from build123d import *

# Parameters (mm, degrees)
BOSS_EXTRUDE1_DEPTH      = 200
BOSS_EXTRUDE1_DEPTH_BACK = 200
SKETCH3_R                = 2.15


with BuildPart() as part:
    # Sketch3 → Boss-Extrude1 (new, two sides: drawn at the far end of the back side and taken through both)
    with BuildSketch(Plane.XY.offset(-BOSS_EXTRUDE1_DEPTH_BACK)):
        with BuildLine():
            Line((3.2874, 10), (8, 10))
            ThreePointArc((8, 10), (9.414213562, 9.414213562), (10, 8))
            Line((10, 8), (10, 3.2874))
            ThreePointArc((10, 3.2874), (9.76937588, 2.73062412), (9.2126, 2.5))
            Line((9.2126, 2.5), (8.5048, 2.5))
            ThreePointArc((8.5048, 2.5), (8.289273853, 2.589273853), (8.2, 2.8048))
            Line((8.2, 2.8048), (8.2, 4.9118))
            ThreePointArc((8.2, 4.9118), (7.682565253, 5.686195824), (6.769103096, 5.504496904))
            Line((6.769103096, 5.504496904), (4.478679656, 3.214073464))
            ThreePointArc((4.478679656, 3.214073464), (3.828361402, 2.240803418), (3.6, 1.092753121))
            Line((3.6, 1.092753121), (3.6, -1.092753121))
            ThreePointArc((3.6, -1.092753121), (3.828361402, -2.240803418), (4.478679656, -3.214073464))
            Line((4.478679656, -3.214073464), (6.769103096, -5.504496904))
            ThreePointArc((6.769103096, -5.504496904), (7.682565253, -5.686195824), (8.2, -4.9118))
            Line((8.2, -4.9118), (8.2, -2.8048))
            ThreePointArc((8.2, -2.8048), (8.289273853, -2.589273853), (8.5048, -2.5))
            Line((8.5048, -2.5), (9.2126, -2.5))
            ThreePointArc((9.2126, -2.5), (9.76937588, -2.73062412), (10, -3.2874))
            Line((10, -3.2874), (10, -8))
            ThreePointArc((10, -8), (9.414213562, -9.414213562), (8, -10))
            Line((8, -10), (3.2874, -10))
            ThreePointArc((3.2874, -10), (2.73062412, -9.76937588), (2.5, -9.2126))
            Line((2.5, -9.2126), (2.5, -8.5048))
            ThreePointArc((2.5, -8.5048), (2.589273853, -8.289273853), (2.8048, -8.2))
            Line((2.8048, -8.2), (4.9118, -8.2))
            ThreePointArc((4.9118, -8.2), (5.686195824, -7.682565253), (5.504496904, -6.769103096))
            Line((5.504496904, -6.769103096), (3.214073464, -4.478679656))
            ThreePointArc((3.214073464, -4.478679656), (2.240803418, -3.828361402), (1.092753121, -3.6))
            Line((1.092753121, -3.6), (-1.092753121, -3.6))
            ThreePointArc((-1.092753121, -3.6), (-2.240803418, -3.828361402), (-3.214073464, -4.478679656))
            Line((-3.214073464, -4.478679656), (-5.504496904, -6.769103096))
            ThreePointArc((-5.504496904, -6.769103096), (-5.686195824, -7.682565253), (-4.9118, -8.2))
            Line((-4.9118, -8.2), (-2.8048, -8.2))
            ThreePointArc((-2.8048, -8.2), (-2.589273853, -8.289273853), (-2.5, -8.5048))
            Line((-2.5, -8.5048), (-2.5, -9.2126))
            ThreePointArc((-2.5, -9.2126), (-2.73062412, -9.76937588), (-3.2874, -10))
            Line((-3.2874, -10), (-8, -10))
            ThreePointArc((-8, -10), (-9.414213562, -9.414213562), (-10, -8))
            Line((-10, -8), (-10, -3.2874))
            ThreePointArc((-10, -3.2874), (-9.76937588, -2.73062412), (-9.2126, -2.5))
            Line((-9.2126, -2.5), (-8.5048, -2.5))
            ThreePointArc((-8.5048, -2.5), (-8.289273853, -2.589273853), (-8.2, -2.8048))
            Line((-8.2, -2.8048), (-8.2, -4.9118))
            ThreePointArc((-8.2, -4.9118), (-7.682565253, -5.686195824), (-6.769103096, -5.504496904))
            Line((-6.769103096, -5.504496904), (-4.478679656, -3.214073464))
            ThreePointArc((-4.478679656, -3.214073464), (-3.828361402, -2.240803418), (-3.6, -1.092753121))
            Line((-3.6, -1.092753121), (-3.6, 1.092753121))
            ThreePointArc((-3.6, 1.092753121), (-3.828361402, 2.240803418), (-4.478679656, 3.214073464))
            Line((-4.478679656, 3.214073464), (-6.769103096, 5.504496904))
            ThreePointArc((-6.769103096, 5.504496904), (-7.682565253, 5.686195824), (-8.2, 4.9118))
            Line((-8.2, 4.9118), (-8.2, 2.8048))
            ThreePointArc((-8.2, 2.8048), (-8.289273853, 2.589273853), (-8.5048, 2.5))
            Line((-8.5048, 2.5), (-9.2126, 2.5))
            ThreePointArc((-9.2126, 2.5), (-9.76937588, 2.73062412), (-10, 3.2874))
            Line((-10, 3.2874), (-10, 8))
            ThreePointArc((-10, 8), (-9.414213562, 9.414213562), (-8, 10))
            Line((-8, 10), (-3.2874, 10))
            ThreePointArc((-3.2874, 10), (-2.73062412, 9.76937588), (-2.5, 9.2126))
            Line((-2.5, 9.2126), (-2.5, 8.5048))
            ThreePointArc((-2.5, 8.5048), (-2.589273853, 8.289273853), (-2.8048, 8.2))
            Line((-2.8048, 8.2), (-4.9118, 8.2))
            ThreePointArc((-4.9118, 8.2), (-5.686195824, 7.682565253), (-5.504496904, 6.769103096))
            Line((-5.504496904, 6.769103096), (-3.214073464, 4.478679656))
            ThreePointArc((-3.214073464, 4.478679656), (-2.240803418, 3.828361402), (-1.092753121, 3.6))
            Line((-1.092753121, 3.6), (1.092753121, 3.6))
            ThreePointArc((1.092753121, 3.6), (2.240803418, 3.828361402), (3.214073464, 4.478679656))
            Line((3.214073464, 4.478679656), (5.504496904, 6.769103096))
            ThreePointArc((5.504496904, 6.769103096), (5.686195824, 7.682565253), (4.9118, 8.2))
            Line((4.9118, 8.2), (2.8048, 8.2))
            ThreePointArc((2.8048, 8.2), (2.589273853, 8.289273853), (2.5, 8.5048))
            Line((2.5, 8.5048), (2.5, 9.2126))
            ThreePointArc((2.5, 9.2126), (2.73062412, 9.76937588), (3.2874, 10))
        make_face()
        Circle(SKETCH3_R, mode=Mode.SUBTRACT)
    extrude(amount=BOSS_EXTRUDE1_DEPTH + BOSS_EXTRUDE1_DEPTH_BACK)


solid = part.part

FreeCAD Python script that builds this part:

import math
import FreeCAD as App
import Part
import Sketcher
from FreeCAD import Vector
Q = App.Units.Quantity

doc = App.newDocument("Part")
body = doc.addObject("PartDesign::Body", "Body")

sketch1 = body.newObject("Sketcher::SketchObject", "Sketch")
sketch1.AttachmentSupport = (doc.getObject("XY_Plane"), [""])
sketch1.MapMode = "FlatFace"
sketch1.addGeometry(Part.LineSegment(Vector(8, 10, 0), Vector(3.29, 10, 0)), False)
sketch1.addGeometry(Part.ArcOfCircle(Part.Circle(Vector(3.29, 9.21, 0), Vector(0, 0, 1), 0.79), math.radians(90), math.radians(180)), False)
sketch1.addGeometry(Part.LineSegment(Vector(2.5, 9.21, 0), Vector(2.5, 8.5, 0)), False)
sketch1.addGeometry(Part.ArcOfCircle(Part.Circle(Vector(2.8, 8.5, 0), Vector(0, 0, 1), 0.3), math.radians(180), math.radians(270)), False)
sketch1.addGeometry(Part.LineSegment(Vector(2.8, 8.2, 0), Vector(4.91, 8.2, 0)), False)
sketch1.addGeometry(Part.ArcOfCircle(Part.Circle(Vector(4.91, 7.36, 0), Vector(0, 0, 1), 0.84), math.radians(-45), math.radians(90)), False)
sketch1.addGeometry(Part.LineSegment(Vector(5.5, 6.77, 0), Vector(3.21, 4.48, 0)), False)
sketch1.addGeometry(Part.ArcOfCircle(Part.Circle(Vector(1.09, 6.6, 0), Vector(0, 0, 1), 3), math.radians(-90), math.radians(-45)), False)
sketch1.addGeometry(Part.LineSegment(Vector(1.09, 3.6, 0), Vector(-1.09, 3.6, 0)), False)
sketch1.addGeometry(Part.ArcOfCircle(Part.Circle(Vector(-1.09, 6.6, 0), Vector(0, 0, 1), 3), math.radians(-135), math.radians(-90)), False)
sketch1.addGeometry(Part.LineSegment(Vector(-3.21, 4.48, 0), Vector(-5.5, 6.77, 0)), False)
sketch1.addGeometry(Part.ArcOfCircle(Part.Circle(Vector(-4.91, 7.36, 0), Vector(0, 0, 1), 0.84), math.radians(90), math.radians(225)), False)
sketch1.addGeometry(Part.LineSegment(Vector(-4.91, 8.2, 0), Vector(-2.8, 8.2, 0)), False)
sketch1.addGeometry(Part.ArcOfCircle(Part.Circle(Vector(-2.8, 8.5, 0), Vector(0, 0, 1), 0.3), math.radians(-90), math.radians(0)), False)
sketch1.addGeometry(Part.LineSegment(Vector(-2.5, 8.5, 0), Vector(-2.5, 9.21, 0)), False)
sketch1.addGeometry(Part.ArcOfCircle(Part.Circle(Vector(-3.29, 9.21, 0), Vector(0, 0, 1), 0.79), math.radians(0), math.radians(90)), False)
sketch1.addGeometry(Part.LineSegment(Vector(-3.29, 10, 0), Vector(-8, 10, 0)), False)
sketch1.addGeometry(Part.ArcOfCircle(Part.Circle(Vector(-8, 8, 0), Vector(0, 0, 1), 2), math.radians(90), math.radians(180)), False)
sketch1.addGeometry(Part.LineSegment(Vector(-10, 8, 0), Vector(-10, 3.29, 0)), False)
sketch1.addGeometry(Part.ArcOfCircle(Part.Circle(Vector(-9.21, 3.29, 0), Vector(0, 0, 1), 0.79), math.radians(180), math.radians(270)), False)
sketch1.addGeometry(Part.LineSegment(Vector(-9.21, 2.5, 0), Vector(-8.5, 2.5, 0)), False)
sketch1.addGeometry(Part.ArcOfCircle(Part.Circle(Vector(-8.5, 2.8, 0), Vector(0, 0, 1), 0.3), math.radians(-90), math.radians(0)), False)
sketch1.addGeometry(Part.LineSegment(Vector(-8.2, 2.8, 0), Vector(-8.2, 4.91, 0)), False)
sketch1.addGeometry(Part.ArcOfCircle(Part.Circle(Vector(-7.36, 4.91, 0), Vector(0, 0, 1), 0.84), math.radians(45), math.radians(180)), False)
sketch1.addGeometry(Part.LineSegment(Vector(-6.77, 5.5, 0), Vector(-4.48, 3.21, 0)), False)
sketch1.addGeometry(Part.ArcOfCircle(Part.Circle(Vector(-6.6, 1.09, 0), Vector(0, 0, 1), 3), math.radians(0), math.radians(45)), False)
sketch1.addGeometry(Part.LineSegment(Vector(-3.6, 1.09, 0), Vector(-3.6, -1.09, 0)), False)
sketch1.addGeometry(Part.ArcOfCircle(Part.Circle(Vector(-6.6, -1.09, 0), Vector(0, 0, 1), 3), math.radians(-45), math.radians(0)), False)
sketch1.addGeometry(Part.LineSegment(Vector(-4.48, -3.21, 0), Vector(-6.77, -5.5, 0)), False)
sketch1.addGeometry(Part.ArcOfCircle(Part.Circle(Vector(-7.36, -4.91, 0), Vector(0, 0, 1), 0.84), math.radians(180), math.radians(315)), False)
sketch1.addGeometry(Part.LineSegment(Vector(-8.2, -4.91, 0), Vector(-8.2, -2.8, 0)), False)
sketch1.addGeometry(Part.ArcOfCircle(Part.Circle(Vector(-8.5, -2.8, 0), Vector(0, 0, 1), 0.3), math.radians(0), math.radians(90)), False)
sketch1.addGeometry(Part.LineSegment(Vector(-8.5, -2.5, 0), Vector(-9.21, -2.5, 0)), False)
sketch1.addGeometry(Part.ArcOfCircle(Part.Circle(Vector(-9.21, -3.29, 0), Vector(0, 0, 1), 0.79), math.radians(90), math.radians(180)), False)
sketch1.addGeometry(Part.LineSegment(Vector(-10, -3.29, 0), Vector(-10, -8, 0)), False)
sketch1.addGeometry(Part.ArcOfCircle(Part.Circle(Vector(-8, -8, 0), Vector(0, 0, 1), 2), math.radians(-180), math.radians(-90)), False)
sketch1.addGeometry(Part.LineSegment(Vector(-8, -10, 0), Vector(-3.29, -10, 0)), False)
sketch1.addGeometry(Part.ArcOfCircle(Part.Circle(Vector(-3.29, -9.21, 0), Vector(0, 0, 1), 0.79), math.radians(-90), math.radians(0)), False)
sketch1.addGeometry(Part.LineSegment(Vector(-2.5, -9.21, 0), Vector(-2.5, -8.5, 0)), False)
sketch1.addGeometry(Part.ArcOfCircle(Part.Circle(Vector(-2.8, -8.5, 0), Vector(0, 0, 1), 0.3), math.radians(0), math.radians(90)), False)
sketch1.addGeometry(Part.LineSegment(Vector(-2.8, -8.2, 0), Vector(-4.91, -8.2, 0)), False)
sketch1.addGeometry(Part.ArcOfCircle(Part.Circle(Vector(-4.91, -7.36, 0), Vector(0, 0, 1), 0.84), math.radians(135), math.radians(270)), False)
sketch1.addGeometry(Part.LineSegment(Vector(-5.5, -6.77, 0), Vector(-3.21, -4.48, 0)), False)
sketch1.addGeometry(Part.ArcOfCircle(Part.Circle(Vector(-1.09, -6.6, 0), Vector(0, 0, 1), 3), math.radians(90), math.radians(135)), False)
sketch1.addGeometry(Part.LineSegment(Vector(-1.09, -3.6, 0), Vector(1.09, -3.6, 0)), False)
sketch1.addGeometry(Part.ArcOfCircle(Part.Circle(Vector(1.09, -6.6, 0), Vector(0, 0, 1), 3), math.radians(45), math.radians(90)), False)
sketch1.addGeometry(Part.LineSegment(Vector(3.21, -4.48, 0), Vector(5.5, -6.77, 0)), False)
sketch1.addGeometry(Part.ArcOfCircle(Part.Circle(Vector(4.91, -7.36, 0), Vector(0, 0, 1), 0.84), math.radians(-90), math.radians(45)), False)
sketch1.addGeometry(Part.LineSegment(Vector(4.91, -8.2, 0), Vector(2.8, -8.2, 0)), False)
sketch1.addGeometry(Part.ArcOfCircle(Part.Circle(Vector(2.8, -8.5, 0), Vector(0, 0, 1), 0.3), math.radians(90), math.radians(180)), False)
sketch1.addGeometry(Part.LineSegment(Vector(2.5, -8.5, 0), Vector(2.5, -9.21, 0)), False)
sketch1.addGeometry(Part.ArcOfCircle(Part.Circle(Vector(3.29, -9.21, 0), Vector(0, 0, 1), 0.79), math.radians(180), math.radians(270)), False)
sketch1.addGeometry(Part.LineSegment(Vector(3.29, -10, 0), Vector(8, -10, 0)), False)
sketch1.addGeometry(Part.ArcOfCircle(Part.Circle(Vector(8, -8, 0), Vector(0, 0, 1), 2), math.radians(-90), math.radians(0)), False)
sketch1.addGeometry(Part.LineSegment(Vector(10, -8, 0), Vector(10, -3.29, 0)), False)
sketch1.addGeometry(Part.ArcOfCircle(Part.Circle(Vector(9.21, -3.29, 0), Vector(0, 0, 1), 0.79), math.radians(0), math.radians(90)), False)
sketch1.addGeometry(Part.LineSegment(Vector(9.21, -2.5, 0), Vector(8.5, -2.5, 0)), False)
sketch1.addGeometry(Part.ArcOfCircle(Part.Circle(Vector(8.5, -2.8, 0), Vector(0, 0, 1), 0.3), math.radians(90), math.radians(180)), False)
sketch1.addGeometry(Part.LineSegment(Vector(8.2, -2.8, 0), Vector(8.2, -4.91, 0)), False)
sketch1.addGeometry(Part.ArcOfCircle(Part.Circle(Vector(7.36, -4.91, 0), Vector(0, 0, 1), 0.84), math.radians(-135), math.radians(0)), False)
sketch1.addGeometry(Part.LineSegment(Vector(6.77, -5.5, 0), Vector(4.48, -3.21, 0)), False)
sketch1.addGeometry(Part.ArcOfCircle(Part.Circle(Vector(6.6, -1.09, 0), Vector(0, 0, 1), 3), math.radians(180), math.radians(225)), False)
sketch1.addGeometry(Part.LineSegment(Vector(3.6, -1.09, 0), Vector(3.6, 1.09, 0)), False)
sketch1.addGeometry(Part.ArcOfCircle(Part.Circle(Vector(6.6, 1.09, 0), Vector(0, 0, 1), 3), math.radians(135), math.radians(180)), False)
sketch1.addGeometry(Part.LineSegment(Vector(4.48, 3.21, 0), Vector(6.77, 5.5, 0)), False)
sketch1.addGeometry(Part.ArcOfCircle(Part.Circle(Vector(7.36, 4.91, 0), Vector(0, 0, 1), 0.84), math.radians(0), math.radians(135)), False)
sketch1.addGeometry(Part.LineSegment(Vector(8.2, 4.91, 0), Vector(8.2, 2.8, 0)), False)
sketch1.addGeometry(Part.ArcOfCircle(Part.Circle(Vector(8.5, 2.8, 0), Vector(0, 0, 1), 0.3), math.radians(180), math.radians(270)), False)
sketch1.addGeometry(Part.LineSegment(Vector(8.5, 2.5, 0), Vector(9.21, 2.5, 0)), False)
sketch1.addGeometry(Part.ArcOfCircle(Part.Circle(Vector(9.21, 3.29, 0), Vector(0, 0, 1), 0.79), math.radians(-90), math.radians(0)), False)
sketch1.addGeometry(Part.LineSegment(Vector(10, 3.29, 0), Vector(10, 8, 0)), False)
sketch1.addGeometry(Part.ArcOfCircle(Part.Circle(Vector(8, 8, 0), Vector(0, 0, 1), 2), math.radians(0), math.radians(90)), False)
sketch1.addGeometry(Part.Circle(Vector(0, 0, 0), Vector(0, 0, 1), 2.15), False)
sketch1.addConstraint(Sketcher.Constraint("Tangent", 0, 2, 1, 1))
sketch1.addConstraint(Sketcher.Constraint("Tangent", 1, 2, 2, 1))
sketch1.addConstraint(Sketcher.Constraint("Tangent", 2, 2, 3, 1))
sketch1.addConstraint(Sketcher.Constraint("Tangent", 3, 2, 4, 1))
sketch1.addConstraint(Sketcher.Constraint("Tangent", 4, 2, 5, 2))
sketch1.addConstraint(Sketcher.Constraint("Tangent", 5, 1, 6, 1))
sketch1.addConstraint(Sketcher.Constraint("Tangent", 6, 2, 7, 2))
sketch1.addConstraint(Sketcher.Constraint("Tangent", 7, 1, 8, 1))
sketch1.addConstraint(Sketcher.Constraint("Tangent", 8, 2, 9, 2))
sketch1.addConstraint(Sketcher.Constraint("Tangent", 9, 1, 10, 1))
sketch1.addConstraint(Sketcher.Constraint("Tangent", 10, 2, 11, 2))
sketch1.addConstraint(Sketcher.Constraint("Tangent", 11, 1, 12, 1))
sketch1.addConstraint(Sketcher.Constraint("Tangent", 12, 2, 13, 1))
sketch1.addConstraint(Sketcher.Constraint("Tangent", 13, 2, 14, 1))
sketch1.addConstraint(Sketcher.Constraint("Tangent", 14, 2, 15, 1))
sketch1.addConstraint(Sketcher.Constraint("Tangent", 15, 2, 16, 1))
sketch1.addConstraint(Sketcher.Constraint("Tangent", 16, 2, 17, 1))
sketch1.addConstraint(Sketcher.Constraint("Tangent", 17, 2, 18, 1))
sketch1.addConstraint(Sketcher.Constraint("Tangent", 18, 2, 19, 1))
sketch1.addConstraint(Sketcher.Constraint("Tangent", 19, 2, 20, 1))
sketch1.addConstraint(Sketcher.Constraint("Tangent", 20, 2, 21, 1))
sketch1.addConstraint(Sketcher.Constraint("Tangent", 21, 2, 22, 1))
sketch1.addConstraint(Sketcher.Constraint("Tangent", 22, 2, 23, 2))
sketch1.addConstraint(Sketcher.Constraint("Tangent", 23, 1, 24, 1))
sketch1.addConstraint(Sketcher.Constraint("Tangent", 24, 2, 25, 2))
sketch1.addConstraint(Sketcher.Constraint("Tangent", 25, 1, 26, 1))
sketch1.addConstraint(Sketcher.Constraint("Tangent", 26, 2, 27, 2))
sketch1.addConstraint(Sketcher.Constraint("Tangent", 27, 1, 28, 1))
sketch1.addConstraint(Sketcher.Constraint("Tangent", 28, 2, 29, 2))
sketch1.addConstraint(Sketcher.Constraint("Tangent", 29, 1, 30, 1))
sketch1.addConstraint(Sketcher.Constraint("Tangent", 30, 2, 31, 1))
sketch1.addConstraint(Sketcher.Constraint("Tangent", 31, 2, 32, 1))
sketch1.addConstraint(Sketcher.Constraint("Tangent", 32, 2, 33, 1))
sketch1.addConstraint(Sketcher.Constraint("Tangent", 33, 2, 34, 1))
sketch1.addConstraint(Sketcher.Constraint("Tangent", 34, 2, 35, 1))
sketch1.addConstraint(Sketcher.Constraint("Tangent", 35, 2, 36, 1))
sketch1.addConstraint(Sketcher.Constraint("Tangent", 36, 2, 37, 1))
sketch1.addConstraint(Sketcher.Constraint("Tangent", 37, 2, 38, 1))
sketch1.addConstraint(Sketcher.Constraint("Tangent", 38, 2, 39, 1))
sketch1.addConstraint(Sketcher.Constraint("Tangent", 39, 2, 40, 1))
sketch1.addConstraint(Sketcher.Constraint("Tangent", 40, 2, 41, 2))
sketch1.addConstraint(Sketcher.Constraint("Tangent", 41, 1, 42, 1))
sketch1.addConstraint(Sketcher.Constraint("Tangent", 42, 2, 43, 2))
sketch1.addConstraint(Sketcher.Constraint("Tangent", 43, 1, 44, 1))
sketch1.addConstraint(Sketcher.Constraint("Tangent", 44, 2, 45, 2))
sketch1.addConstraint(Sketcher.Constraint("Tangent", 45, 1, 46, 1))
sketch1.addConstraint(Sketcher.Constraint("Tangent", 46, 2, 47, 2))
sketch1.addConstraint(Sketcher.Constraint("Tangent", 47, 1, 48, 1))
sketch1.addConstraint(Sketcher.Constraint("Tangent", 48, 2, 49, 1))
sketch1.addConstraint(Sketcher.Constraint("Tangent", 49, 2, 50, 1))
sketch1.addConstraint(Sketcher.Constraint("Tangent", 50, 2, 51, 1))
sketch1.addConstraint(Sketcher.Constraint("Tangent", 51, 2, 52, 1))
sketch1.addConstraint(Sketcher.Constraint("Tangent", 52, 2, 53, 1))
sketch1.addConstraint(Sketcher.Constraint("Tangent", 53, 2, 54, 1))
sketch1.addConstraint(Sketcher.Constraint("Tangent", 54, 2, 55, 1))
sketch1.addConstraint(Sketcher.Constraint("Tangent", 55, 2, 56, 1))
sketch1.addConstraint(Sketcher.Constraint("Tangent", 56, 2, 57, 1))
sketch1.addConstraint(Sketcher.Constraint("Tangent", 57, 2, 58, 1))
sketch1.addConstraint(Sketcher.Constraint("Tangent", 58, 2, 59, 2))
sketch1.addConstraint(Sketcher.Constraint("Tangent", 59, 1, 60, 1))
sketch1.addConstraint(Sketcher.Constraint("Tangent", 60, 2, 61, 2))
sketch1.addConstraint(Sketcher.Constraint("Tangent", 61, 1, 62, 1))
sketch1.addConstraint(Sketcher.Constraint("Tangent", 62, 2, 63, 2))
sketch1.addConstraint(Sketcher.Constraint("Tangent", 63, 1, 64, 1))
sketch1.addConstraint(Sketcher.Constraint("Tangent", 64, 2, 65, 2))
sketch1.addConstraint(Sketcher.Constraint("Tangent", 65, 1, 66, 1))
sketch1.addConstraint(Sketcher.Constraint("Tangent", 66, 2, 67, 1))
sketch1.addConstraint(Sketcher.Constraint("Tangent", 67, 2, 68, 1))
sketch1.addConstraint(Sketcher.Constraint("Tangent", 68, 2, 69, 1))
sketch1.addConstraint(Sketcher.Constraint("Tangent", 69, 2, 70, 1))
sketch1.addConstraint(Sketcher.Constraint("Tangent", 70, 2, 71, 1))
sketch1.addConstraint(Sketcher.Constraint("Tangent", 71, 2, 0, 1))
sketch1.addConstraint(Sketcher.Constraint("Horizontal", 0))
sketch1.addConstraint(Sketcher.Constraint("Vertical", 2))
sketch1.addConstraint(Sketcher.Constraint("Horizontal", 4))
sketch1.addConstraint(Sketcher.Constraint("Horizontal", 8))
sketch1.addConstraint(Sketcher.Constraint("Horizontal", 12))
sketch1.addConstraint(Sketcher.Constraint("Vertical", 14))
sketch1.addConstraint(Sketcher.Constraint("Horizontal", 16))
sketch1.addConstraint(Sketcher.Constraint("Vertical", 18))
sketch1.addConstraint(Sketcher.Constraint("Horizontal", 20))
sketch1.addConstraint(Sketcher.Constraint("Vertical", 22))
sketch1.addConstraint(Sketcher.Constraint("Vertical", 26))
sketch1.addConstraint(Sketcher.Constraint("Vertical", 30))
sketch1.addConstraint(Sketcher.Constraint("Horizontal", 32))
sketch1.addConstraint(Sketcher.Constraint("Vertical", 34))
sketch1.addConstraint(Sketcher.Constraint("Horizontal", 36))
sketch1.addConstraint(Sketcher.Constraint("Vertical", 38))
sketch1.addConstraint(Sketcher.Constraint("Horizontal", 40))
sketch1.addConstraint(Sketcher.Constraint("Horizontal", 44))
sketch1.addConstraint(Sketcher.Constraint("Horizontal", 48))
sketch1.addConstraint(Sketcher.Constraint("Vertical", 50))
sketch1.addConstraint(Sketcher.Constraint("Horizontal", 52))
sketch1.addConstraint(Sketcher.Constraint("Vertical", 54))
sketch1.addConstraint(Sketcher.Constraint("Horizontal", 56))
sketch1.addConstraint(Sketcher.Constraint("Vertical", 58))
sketch1.addConstraint(Sketcher.Constraint("Vertical", 62))
sketch1.addConstraint(Sketcher.Constraint("Vertical", 66))
sketch1.addConstraint(Sketcher.Constraint("Horizontal", 68))
sketch1.addConstraint(Sketcher.Constraint("Vertical", 70))
sketch1.addConstraint(Sketcher.Constraint("Coincident", 72, 3, -1, 1))
sketch1.addConstraint(Sketcher.Constraint("Equal", 7, 9))
sketch1.addConstraint(Sketcher.Constraint("Equal", 5, 11))
sketch1.addConstraint(Sketcher.Constraint("Equal", 3, 13))
sketch1.addConstraint(Sketcher.Constraint("Equal", 1, 15))
sketch1.addConstraint(Sketcher.Constraint("Equal", 15, 19))
sketch1.addConstraint(Sketcher.Constraint("Equal", 13, 21))
sketch1.addConstraint(Sketcher.Constraint("Equal", 11, 23))
sketch1.addConstraint(Sketcher.Constraint("Equal", 9, 25))
sketch1.addConstraint(Sketcher.Constraint("Equal", 25, 27))
sketch1.addConstraint(Sketcher.Constraint("Equal", 23, 29))
sketch1.addConstraint(Sketcher.Constraint("Equal", 21, 31))
sketch1.addConstraint(Sketcher.Constraint("Equal", 19, 33))
sketch1.addConstraint(Sketcher.Constraint("Equal", 17, 35))
sketch1.addConstraint(Sketcher.Constraint("Equal", 33, 37))
sketch1.addConstraint(Sketcher.Constraint("Equal", 31, 39))
sketch1.addConstraint(Sketcher.Constraint("Equal", 29, 41))
sketch1.addConstraint(Sketcher.Constraint("Equal", 27, 43))
sketch1.addConstraint(Sketcher.Constraint("Equal", 43, 45))
sketch1.addConstraint(Sketcher.Constraint("Equal", 41, 47))
sketch1.addConstraint(Sketcher.Constraint("Equal", 39, 49))
sketch1.addConstraint(Sketcher.Constraint("Equal", 37, 51))
sketch1.addConstraint(Sketcher.Constraint("Equal", 35, 53))
sketch1.addConstraint(Sketcher.Constraint("Equal", 51, 55))
sketch1.addConstraint(Sketcher.Constraint("Equal", 49, 57))
sketch1.addConstraint(Sketcher.Constraint("Equal", 47, 59))
sketch1.addConstraint(Sketcher.Constraint("Equal", 45, 61))
sketch1.addConstraint(Sketcher.Constraint("Equal", 61, 63))
sketch1.addConstraint(Sketcher.Constraint("Equal", 59, 65))
sketch1.addConstraint(Sketcher.Constraint("Equal", 57, 67))
sketch1.addConstraint(Sketcher.Constraint("Equal", 55, 69))
sketch1.addConstraint(Sketcher.Constraint("Equal", 53, 71))
sketch1.addConstraint(Sketcher.Constraint("Symmetric", 1, 3, 37, 3, -1, 1))
sketch1.addConstraint(Sketcher.Constraint("Symmetric", 5, 3, 41, 3, -1, 1))
sketch1.addConstraint(Sketcher.Constraint("Symmetric", 7, 3, 43, 3, -1, 1))
sketch1.addConstraint(Sketcher.Constraint("Symmetric", 11, 3, 47, 3, -1, 1))
sketch1.addConstraint(Sketcher.Constraint("Symmetric", 15, 3, 51, 3, -1, 1))
sketch1.addConstraint(Sketcher.Constraint("Symmetric", 19, 3, 55, 3, -1, 1))
sketch1.addConstraint(Sketcher.Constraint("Symmetric", 23, 3, 59, 3, -1, 1))
sketch1.addConstraint(Sketcher.Constraint("Symmetric", 25, 3, 61, 3, -1, 1))
sketch1.addConstraint(Sketcher.Constraint("Symmetric", 29, 3, 65, 3, -1, 1))
sketch1.addConstraint(Sketcher.Constraint("Symmetric", 33, 3, 69, 3, -1, 1))
sketch1.addConstraint(Sketcher.Constraint("Symmetric", 5, 3, 11, 3, -2))
sketch1.addConstraint(Sketcher.Constraint("Symmetric", 1, 3, 15, 3, -2))
sketch1.addConstraint(Sketcher.Constraint("Symmetric", 33, 3, 55, 3, -2))
sketch1.addConstraint(Sketcher.Constraint("Symmetric", 29, 3, 59, 3, -2))
sketch1.addConstraint(Sketcher.Constraint("Perpendicular", 6, 10))
sketch1.addConstraint(Sketcher.Constraint("Parallel", 10, 24))
sketch1.addConstraint(Sketcher.Constraint("Perpendicular", 24, 28))
sketch1.addConstraint(Sketcher.Constraint("Perpendicular", 42, 46))
sketch1.addConstraint(Sketcher.Constraint("Perpendicular", 60, 64))
sketch1.addConstraint(Sketcher.Constraint("Horizontal", 27, 3, 61, 3))
sketch1.addConstraint(Sketcher.Constraint("Equal", 68, 2))
sketch1.addConstraint(Sketcher.Constraint("Equal", 52, 18))
sketch1.addConstraint(Sketcher.Constraint("Equal", 48, 22))
sketch1.addConstraint(Sketcher.Constraint("Equal", 44, 26))
sketch1.addConstraint(Sketcher.Constraint("Equal", 10, 24))
sketch1.addConstraint(Sketcher.Constraint("Radius", 7, Q("3 mm")))
sketch1.addConstraint(Sketcher.Constraint("Radius", 17, Q("2 mm")))
sketch1.addConstraint(Sketcher.Constraint("Diameter", 72, Q("4.3 mm")))
sketch1.addConstraint(Sketcher.Constraint("DistanceX", 17, 3, -1, 1, Q("8 mm")))
sketch1.addConstraint(Sketcher.Constraint("DistanceY", -1, 1, 7, 3, Q("6.6 mm")))
sketch1.addConstraint(Sketcher.Constraint("DistanceX", -1, 1, 1, 2, Q("2.5 mm")))
sketch1.addConstraint(Sketcher.Constraint("DistanceY", -1, 1, 3, 2, Q("8.2 mm")))
sketch1.addConstraint(Sketcher.Constraint("Radius", 1, Q("0.7874 mm")))
sketch1.addConstraint(Sketcher.Constraint("Radius", 3, Q("0.3048 mm")))
sketch1.addConstraint(Sketcher.Constraint("Radius", 5, Q("0.8382 mm")))
sketch1.addConstraint(Sketcher.Constraint("DistanceX", 4, 1, 4, 2, Q("2.107 mm")))
pad1 = body.newObject("PartDesign::Pad", "Pad")
pad1.Profile = sketch1
pad1.Type = "TwoLengths"
pad1.Length = 200
pad1.Length2 = 200

doc.recompute()
